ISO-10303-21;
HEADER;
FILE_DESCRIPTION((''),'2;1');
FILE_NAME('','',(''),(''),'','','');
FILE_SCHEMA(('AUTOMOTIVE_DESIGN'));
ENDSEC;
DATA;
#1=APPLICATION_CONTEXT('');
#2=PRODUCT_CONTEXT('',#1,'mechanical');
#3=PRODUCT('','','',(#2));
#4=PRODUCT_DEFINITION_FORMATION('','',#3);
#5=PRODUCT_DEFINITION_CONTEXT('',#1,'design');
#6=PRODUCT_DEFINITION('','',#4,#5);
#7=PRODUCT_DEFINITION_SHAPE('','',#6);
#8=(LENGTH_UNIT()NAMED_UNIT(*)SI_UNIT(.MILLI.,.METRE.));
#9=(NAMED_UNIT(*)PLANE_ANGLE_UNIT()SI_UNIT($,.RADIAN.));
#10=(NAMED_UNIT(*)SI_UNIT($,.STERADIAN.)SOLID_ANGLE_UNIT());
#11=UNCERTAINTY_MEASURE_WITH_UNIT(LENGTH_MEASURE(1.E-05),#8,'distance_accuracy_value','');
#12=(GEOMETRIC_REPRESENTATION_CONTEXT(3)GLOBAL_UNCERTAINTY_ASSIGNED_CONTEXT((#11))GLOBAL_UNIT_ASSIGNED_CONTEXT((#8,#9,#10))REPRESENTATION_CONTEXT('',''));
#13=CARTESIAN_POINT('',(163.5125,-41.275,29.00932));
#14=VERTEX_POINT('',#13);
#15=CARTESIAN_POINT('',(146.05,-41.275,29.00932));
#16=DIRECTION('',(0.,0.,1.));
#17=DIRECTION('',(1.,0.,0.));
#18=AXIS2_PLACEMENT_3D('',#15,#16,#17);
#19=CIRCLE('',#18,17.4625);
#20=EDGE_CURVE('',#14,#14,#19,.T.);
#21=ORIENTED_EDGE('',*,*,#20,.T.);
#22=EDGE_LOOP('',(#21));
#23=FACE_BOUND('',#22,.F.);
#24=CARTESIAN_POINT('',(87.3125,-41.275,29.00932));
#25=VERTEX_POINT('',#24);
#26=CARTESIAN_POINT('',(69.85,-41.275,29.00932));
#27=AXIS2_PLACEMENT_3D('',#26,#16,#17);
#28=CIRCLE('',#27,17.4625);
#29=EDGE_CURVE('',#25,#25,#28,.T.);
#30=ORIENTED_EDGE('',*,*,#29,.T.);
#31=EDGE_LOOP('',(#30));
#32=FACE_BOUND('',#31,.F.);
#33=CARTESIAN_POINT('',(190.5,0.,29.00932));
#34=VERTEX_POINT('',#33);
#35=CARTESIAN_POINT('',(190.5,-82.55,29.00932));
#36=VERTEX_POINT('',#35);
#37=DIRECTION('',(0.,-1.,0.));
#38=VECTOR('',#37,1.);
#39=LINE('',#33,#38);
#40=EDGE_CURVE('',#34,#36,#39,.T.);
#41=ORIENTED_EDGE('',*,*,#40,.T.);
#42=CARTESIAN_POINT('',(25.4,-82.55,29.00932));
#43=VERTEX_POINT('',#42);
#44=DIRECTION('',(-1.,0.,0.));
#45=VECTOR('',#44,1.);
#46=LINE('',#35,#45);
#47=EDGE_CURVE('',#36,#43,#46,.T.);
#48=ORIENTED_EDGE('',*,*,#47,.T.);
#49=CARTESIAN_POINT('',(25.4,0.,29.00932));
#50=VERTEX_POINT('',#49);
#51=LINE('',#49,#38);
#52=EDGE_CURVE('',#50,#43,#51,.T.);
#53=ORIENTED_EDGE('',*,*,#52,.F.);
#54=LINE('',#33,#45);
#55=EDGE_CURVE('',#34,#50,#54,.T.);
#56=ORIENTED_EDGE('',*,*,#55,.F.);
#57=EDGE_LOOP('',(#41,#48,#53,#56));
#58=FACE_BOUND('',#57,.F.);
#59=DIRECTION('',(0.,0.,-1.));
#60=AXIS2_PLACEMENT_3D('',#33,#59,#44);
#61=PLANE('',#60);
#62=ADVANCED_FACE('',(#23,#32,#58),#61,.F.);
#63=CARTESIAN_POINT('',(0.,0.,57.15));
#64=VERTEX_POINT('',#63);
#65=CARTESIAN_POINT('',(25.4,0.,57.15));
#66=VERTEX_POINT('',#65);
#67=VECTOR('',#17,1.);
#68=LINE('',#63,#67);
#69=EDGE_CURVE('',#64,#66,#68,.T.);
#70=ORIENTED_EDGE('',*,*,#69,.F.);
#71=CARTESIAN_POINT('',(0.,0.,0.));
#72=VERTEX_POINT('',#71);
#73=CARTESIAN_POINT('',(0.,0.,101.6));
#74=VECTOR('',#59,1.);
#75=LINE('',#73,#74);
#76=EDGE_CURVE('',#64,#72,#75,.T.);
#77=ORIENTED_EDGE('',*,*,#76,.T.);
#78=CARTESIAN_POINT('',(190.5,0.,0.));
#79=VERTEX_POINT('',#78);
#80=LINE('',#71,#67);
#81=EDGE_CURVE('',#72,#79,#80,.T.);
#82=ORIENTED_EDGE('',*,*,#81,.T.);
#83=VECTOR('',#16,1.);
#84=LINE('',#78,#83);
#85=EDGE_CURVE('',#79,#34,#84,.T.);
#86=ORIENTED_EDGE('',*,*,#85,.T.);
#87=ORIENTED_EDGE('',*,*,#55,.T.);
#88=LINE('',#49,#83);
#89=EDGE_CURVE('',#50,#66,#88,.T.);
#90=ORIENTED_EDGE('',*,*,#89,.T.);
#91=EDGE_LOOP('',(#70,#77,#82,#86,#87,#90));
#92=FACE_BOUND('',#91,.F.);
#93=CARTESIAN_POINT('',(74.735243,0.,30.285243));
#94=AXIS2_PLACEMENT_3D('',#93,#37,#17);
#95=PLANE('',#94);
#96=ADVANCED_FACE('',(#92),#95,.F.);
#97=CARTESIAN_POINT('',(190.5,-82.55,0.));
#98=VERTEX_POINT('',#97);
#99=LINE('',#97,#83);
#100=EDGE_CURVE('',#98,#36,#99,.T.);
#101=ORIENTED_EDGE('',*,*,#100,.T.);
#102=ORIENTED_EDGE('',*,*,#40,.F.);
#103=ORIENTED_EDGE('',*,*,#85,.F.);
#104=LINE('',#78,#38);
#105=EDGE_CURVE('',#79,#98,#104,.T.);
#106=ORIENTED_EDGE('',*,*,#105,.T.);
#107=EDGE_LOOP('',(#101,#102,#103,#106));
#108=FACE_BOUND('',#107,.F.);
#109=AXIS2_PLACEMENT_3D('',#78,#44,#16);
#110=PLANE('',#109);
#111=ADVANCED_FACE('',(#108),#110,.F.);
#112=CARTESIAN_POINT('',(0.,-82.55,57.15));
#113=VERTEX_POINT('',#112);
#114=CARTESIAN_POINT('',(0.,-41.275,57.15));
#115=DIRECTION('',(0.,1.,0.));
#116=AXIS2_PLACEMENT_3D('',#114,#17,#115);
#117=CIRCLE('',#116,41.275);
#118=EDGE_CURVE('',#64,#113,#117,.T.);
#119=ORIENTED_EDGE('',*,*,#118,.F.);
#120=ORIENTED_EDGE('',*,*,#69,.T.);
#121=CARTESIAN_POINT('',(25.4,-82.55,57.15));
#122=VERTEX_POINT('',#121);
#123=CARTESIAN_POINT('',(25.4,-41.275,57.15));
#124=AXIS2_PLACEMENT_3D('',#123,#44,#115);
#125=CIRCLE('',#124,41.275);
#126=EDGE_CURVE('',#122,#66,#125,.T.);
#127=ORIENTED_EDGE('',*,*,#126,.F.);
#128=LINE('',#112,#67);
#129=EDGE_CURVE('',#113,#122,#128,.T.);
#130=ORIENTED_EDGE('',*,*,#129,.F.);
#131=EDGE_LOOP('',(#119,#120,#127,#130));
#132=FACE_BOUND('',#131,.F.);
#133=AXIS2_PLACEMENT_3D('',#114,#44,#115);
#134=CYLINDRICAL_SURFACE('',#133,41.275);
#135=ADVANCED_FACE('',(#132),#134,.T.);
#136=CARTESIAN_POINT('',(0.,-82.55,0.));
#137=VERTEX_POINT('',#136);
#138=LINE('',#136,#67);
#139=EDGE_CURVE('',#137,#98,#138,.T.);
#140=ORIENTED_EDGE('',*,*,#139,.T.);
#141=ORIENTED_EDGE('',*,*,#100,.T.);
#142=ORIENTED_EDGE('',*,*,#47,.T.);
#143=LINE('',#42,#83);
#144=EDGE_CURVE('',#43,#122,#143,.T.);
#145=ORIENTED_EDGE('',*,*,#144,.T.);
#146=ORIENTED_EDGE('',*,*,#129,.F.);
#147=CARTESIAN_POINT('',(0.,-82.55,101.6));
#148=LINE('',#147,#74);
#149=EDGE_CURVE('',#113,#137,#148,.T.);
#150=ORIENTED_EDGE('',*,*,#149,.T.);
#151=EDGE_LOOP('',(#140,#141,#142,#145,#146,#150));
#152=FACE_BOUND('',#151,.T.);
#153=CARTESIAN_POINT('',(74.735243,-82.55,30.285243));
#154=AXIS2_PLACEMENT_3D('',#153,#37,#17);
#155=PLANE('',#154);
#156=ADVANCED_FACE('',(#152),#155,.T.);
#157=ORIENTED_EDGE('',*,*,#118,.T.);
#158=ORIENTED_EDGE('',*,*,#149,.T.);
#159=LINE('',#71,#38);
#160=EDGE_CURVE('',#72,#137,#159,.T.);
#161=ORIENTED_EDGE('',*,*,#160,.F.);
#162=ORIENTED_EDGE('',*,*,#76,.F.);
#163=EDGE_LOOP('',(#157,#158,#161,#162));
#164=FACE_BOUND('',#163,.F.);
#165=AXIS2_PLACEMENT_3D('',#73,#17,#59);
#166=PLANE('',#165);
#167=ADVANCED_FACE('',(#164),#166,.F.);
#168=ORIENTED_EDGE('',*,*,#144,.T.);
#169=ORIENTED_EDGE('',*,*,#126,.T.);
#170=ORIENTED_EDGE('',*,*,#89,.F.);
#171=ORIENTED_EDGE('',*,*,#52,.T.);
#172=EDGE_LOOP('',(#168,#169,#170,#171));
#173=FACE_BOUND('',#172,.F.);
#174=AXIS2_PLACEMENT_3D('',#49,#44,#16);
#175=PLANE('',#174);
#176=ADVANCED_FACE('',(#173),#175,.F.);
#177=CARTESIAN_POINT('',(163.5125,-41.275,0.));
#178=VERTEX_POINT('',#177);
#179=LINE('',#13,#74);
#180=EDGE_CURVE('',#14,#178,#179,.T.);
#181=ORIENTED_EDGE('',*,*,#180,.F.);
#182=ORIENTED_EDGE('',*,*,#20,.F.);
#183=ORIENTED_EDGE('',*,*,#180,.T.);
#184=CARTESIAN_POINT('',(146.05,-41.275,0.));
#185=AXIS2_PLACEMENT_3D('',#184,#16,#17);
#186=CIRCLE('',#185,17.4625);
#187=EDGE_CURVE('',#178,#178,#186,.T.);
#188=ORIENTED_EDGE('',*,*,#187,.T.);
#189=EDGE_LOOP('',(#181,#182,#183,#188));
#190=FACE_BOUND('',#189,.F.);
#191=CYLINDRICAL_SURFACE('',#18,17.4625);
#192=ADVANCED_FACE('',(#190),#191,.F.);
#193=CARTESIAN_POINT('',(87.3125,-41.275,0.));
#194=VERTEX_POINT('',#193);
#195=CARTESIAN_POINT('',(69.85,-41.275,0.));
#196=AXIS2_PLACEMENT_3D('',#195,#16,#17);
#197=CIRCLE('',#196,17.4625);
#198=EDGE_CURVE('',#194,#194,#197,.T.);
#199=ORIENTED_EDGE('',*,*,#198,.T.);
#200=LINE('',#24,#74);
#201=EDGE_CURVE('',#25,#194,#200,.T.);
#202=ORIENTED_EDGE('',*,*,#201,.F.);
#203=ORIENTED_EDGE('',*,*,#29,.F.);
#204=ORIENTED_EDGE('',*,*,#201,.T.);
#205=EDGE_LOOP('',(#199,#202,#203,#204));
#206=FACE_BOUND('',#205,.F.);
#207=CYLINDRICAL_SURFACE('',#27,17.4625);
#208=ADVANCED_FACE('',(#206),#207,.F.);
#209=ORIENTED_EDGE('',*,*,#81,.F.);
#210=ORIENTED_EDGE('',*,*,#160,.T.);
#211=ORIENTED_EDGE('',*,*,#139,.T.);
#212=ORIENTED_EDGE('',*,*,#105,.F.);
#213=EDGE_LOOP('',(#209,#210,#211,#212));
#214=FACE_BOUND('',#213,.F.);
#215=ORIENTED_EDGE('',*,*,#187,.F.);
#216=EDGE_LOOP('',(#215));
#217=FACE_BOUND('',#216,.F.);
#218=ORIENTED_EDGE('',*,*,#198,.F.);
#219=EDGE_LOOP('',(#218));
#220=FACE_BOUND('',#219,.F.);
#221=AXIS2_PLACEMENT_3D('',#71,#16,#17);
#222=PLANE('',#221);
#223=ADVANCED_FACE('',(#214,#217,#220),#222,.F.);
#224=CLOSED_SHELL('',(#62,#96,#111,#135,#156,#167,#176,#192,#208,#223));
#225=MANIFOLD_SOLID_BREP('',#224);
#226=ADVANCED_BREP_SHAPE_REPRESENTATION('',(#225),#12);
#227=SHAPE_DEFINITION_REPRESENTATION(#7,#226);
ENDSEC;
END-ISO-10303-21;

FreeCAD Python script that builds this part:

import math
import FreeCAD as App
import Part
import Sketcher
from FreeCAD import Vector
Q = App.Units.Quantity


def add_polygon(sketch, points):
    """Adds a closed chain of lines whose ends are joined by coincident constraints."""
    first, n = sketch.GeometryCount, len(points)
    for a, b in zip(points, points[1:] + points[:1]):
        sketch.addGeometry(Part.LineSegment(App.Vector(*a, 0), App.Vector(*b, 0)), False)
    for i in range(n):
        sketch.addConstraint(Sketcher.Constraint("Coincident", first + i, 2, first + (i + 1) % n, 1))

doc = App.newDocument("Part")
body = doc.addObject("PartDesign::Body", "Body")

# Sketch on XZ plane
sketch1 = doc.addObject("Sketcher::SketchObject", "Sketch")
body.addObject(sketch1)
sketch1.AttachmentSupport = (doc.XZ_Plane, [""])
sketch1.MapMode = "FlatFace"
add_polygon(sketch1, [(0, 102), (0, 0), (190, 0), (190, 29), (25, 29), (25, 102)])  # lines 0-5
sketch1.addConstraint([
    Sketcher.Constraint("Vertical", 0),
    Sketcher.Constraint("Horizontal", 1),
    Sketcher.Constraint("Vertical", 2),
    Sketcher.Constraint("Horizontal", 3),
    Sketcher.Constraint("Vertical", 4),
    Sketcher.Constraint("Horizontal", 5),
    Sketcher.Constraint("Coincident", 0, 2, -1, 1),
    Sketcher.Constraint("DistanceX", 5, 2, 5, 1, Q("1 in")),
    Sketcher.Constraint("DistanceY", 0, 2, 0, 1, Q("4 in")),
    Sketcher.Constraint("DistanceX", 1, 1, 1, 2, Q("7.5 in")),
    Sketcher.Constraint("DistanceY", 2, 1, 2, 2, Q("29.00932 mm")),
])
pad1 = doc.addObject("PartDesign::Pad", "Pad")
body.addObject(pad1)
pad1.Profile = sketch1
pad1.Length = Q("3.25 in")

# Sketch on YZ plane
sketch2 = doc.addObject("Sketcher::SketchObject", "Sketch001")
body.addObject(sketch2)
sketch2.AttachmentSupport = (doc.YZ_Plane, [""])
sketch2.MapMode = "FlatFace"
sketch2.addGeometry([
    Part.LineSegment(Vector(0, 102, 0), Vector(0, 57, 0)),
    Part.ArcOfCircle(Part.Circle(Vector(-41, 57, 0), Vector(0, 0, 1), 41), math.radians(0), math.radians(180)),
    Part.LineSegment(Vector(-83, 57, 0), Vector(-83, 102, 0)),
    Part.LineSegment(Vector(-83, 102, 0), Vector(0, 102, 0)),
], False)
sketch2.addConstraint([
    Sketcher.Constraint("Tangent", 0, 2, 1, 1),
    Sketcher.Constraint("Tangent", 1, 2, 2, 1),
    Sketcher.Constraint("Coincident", 2, 2, 3, 1),
    Sketcher.Constraint("Coincident", 3, 2, 0, 1),
    Sketcher.Constraint("Vertical", 0),
    Sketcher.Constraint("Vertical", 2),
    Sketcher.Constraint("Horizontal", 3),
    Sketcher.Constraint("PointOnObject", 0, 2, -2),
    Sketcher.Constraint("DistanceY", -1, 1, 2, 2, Q("4 in")),
    Sketcher.Constraint("Radius", 1, Q("1.625 in")),
    Sketcher.Constraint("DistanceY", 0, 2, 0, 1, Q("1.75 in")),
])
pocket1 = doc.addObject("PartDesign::Pocket", "Pocket")
body.addObject(pocket1)
pocket1.Profile = sketch2
pocket1.Type = "ThroughAll"
pocket1.Reversed = True

# Sketch on XY plane
sketch3 = doc.addObject("Sketcher::SketchObject", "Sketch002")
body.addObject(sketch3)
sketch3.AttachmentSupport = (doc.XY_Plane, [""])
sketch3.MapMode = "FlatFace"
sketch3.AttachmentOffset = App.Placement(Vector(0, 0, 29.00932), App.Rotation())
sketch3.addGeometry([
    Part.Circle(Vector(70, -41, 0), Vector(0, 0, 1), 17),
    Part.Circle(Vector(146, -41, 0), Vector(0, 0, 1), 17),
], False)
sketch3.addConstraint([
    Sketcher.Constraint("Equal", 0, 1),
    Sketcher.Constraint("Horizontal", 0, 3, 1, 3),
    Sketcher.Constraint("Diameter", 0, Q("1.375 in")),
    Sketcher.Constraint("DistanceX", 0, 3, 1, 3, Q("3 in")),
    Sketcher.Constraint("DistanceX", -1, 1, 0, 3, Q("2.75 in")),
    Sketcher.Constraint("DistanceY", 0, 3, -1, 1, Q("1.625 in")),
])
pocket2 = doc.addObject("PartDesign::Pocket", "Pocket001")
body.addObject(pocket2)
pocket2.Profile = sketch3
pocket2.Type = "ThroughAll"

doc.recompute()
